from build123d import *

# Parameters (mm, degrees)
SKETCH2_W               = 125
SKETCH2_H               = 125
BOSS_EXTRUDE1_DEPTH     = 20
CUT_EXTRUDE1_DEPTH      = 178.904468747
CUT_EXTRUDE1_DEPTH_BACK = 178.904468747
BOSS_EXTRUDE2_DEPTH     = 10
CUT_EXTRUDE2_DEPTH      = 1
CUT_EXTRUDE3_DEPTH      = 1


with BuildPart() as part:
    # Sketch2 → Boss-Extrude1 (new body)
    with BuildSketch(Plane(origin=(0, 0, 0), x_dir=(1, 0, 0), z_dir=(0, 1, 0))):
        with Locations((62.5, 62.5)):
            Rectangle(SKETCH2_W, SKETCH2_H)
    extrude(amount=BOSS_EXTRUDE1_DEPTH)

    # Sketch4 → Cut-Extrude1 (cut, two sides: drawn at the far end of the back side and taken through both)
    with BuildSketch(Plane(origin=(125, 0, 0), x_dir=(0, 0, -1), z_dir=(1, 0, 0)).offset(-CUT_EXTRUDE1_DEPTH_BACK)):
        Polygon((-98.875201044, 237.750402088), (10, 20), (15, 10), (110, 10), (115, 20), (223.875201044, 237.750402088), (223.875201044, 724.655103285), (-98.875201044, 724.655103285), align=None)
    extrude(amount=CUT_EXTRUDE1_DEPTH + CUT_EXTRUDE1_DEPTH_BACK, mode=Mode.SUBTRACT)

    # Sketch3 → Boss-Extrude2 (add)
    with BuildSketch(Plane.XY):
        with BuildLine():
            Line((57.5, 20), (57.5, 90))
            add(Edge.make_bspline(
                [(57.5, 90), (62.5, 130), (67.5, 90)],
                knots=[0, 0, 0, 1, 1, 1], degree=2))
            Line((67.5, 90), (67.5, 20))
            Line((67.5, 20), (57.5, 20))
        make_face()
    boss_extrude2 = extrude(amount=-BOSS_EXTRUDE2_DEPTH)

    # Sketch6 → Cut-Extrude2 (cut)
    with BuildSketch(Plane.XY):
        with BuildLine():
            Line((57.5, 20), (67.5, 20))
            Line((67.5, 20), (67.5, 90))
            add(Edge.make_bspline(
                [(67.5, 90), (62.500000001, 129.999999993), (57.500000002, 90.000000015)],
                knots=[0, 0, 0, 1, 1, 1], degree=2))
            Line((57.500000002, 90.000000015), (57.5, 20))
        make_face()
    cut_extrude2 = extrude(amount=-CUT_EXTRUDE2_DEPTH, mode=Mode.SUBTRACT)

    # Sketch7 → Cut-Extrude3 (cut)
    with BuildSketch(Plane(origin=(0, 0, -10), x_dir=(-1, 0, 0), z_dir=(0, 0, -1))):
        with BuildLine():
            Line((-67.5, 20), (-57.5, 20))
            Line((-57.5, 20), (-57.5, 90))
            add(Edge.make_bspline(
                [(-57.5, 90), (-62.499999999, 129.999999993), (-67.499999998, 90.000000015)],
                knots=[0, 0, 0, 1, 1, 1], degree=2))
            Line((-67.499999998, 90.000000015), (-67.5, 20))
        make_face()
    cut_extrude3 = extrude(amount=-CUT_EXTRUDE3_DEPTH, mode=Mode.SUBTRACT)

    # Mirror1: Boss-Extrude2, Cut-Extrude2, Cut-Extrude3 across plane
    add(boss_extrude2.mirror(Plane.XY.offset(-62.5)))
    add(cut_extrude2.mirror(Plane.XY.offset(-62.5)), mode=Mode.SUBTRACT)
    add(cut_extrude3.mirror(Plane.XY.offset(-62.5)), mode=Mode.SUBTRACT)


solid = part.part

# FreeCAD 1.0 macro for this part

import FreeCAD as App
import Part
import Sketcher
from FreeCAD import Vector

doc = App.newDocument("Part")
body = doc.addObject("PartDesign::Body", "Body")

# Sketch on XZ plane
sketch1 = body.newObject("Sketcher::SketchObject", "Sketch")
sketch1.AttachmentSupport = (doc.getObject("XZ_Plane"), [""])
sketch1.MapMode = "FlatFace"
sketch1.addGeometry([
    Part.LineSegment(Vector(0, -125, 0), Vector(0, 0, 0)),
    Part.LineSegment(Vector(0, 0, 0), Vector(125, 0, 0)),
    Part.LineSegment(Vector(125, 0, 0), Vector(125, -125, 0)),
    Part.LineSegment(Vector(125, -125, 0), Vector(0, -125, 0)),
], False)
sketch1.addConstraint([
    Sketcher.Constraint("Coincident", 0, 2, 1, 1),
    Sketcher.Constraint("Coincident", 1, 2, 2, 1),
    Sketcher.Constraint("Coincident", 2, 2, 3, 1),
    Sketcher.Constraint("Coincident", 3, 2, 0, 1),
    Sketcher.Constraint("Vertical", 0),
    Sketcher.Constraint("Horizontal", 1),
    Sketcher.Constraint("Vertical", 2),
    Sketcher.Constraint("Horizontal", 3),
    Sketcher.Constraint("Coincident", 0, 2, -1, 1),
    Sketcher.Constraint("Equal", 3, 0),
    Sketcher.Constraint("DistanceX", 1, 1, 1, 2, 125.0),
])
pad1 = body.newObject("PartDesign::Pad", "Pad")
pad1.Profile = sketch1
pad1.Length = 20
pad1.Reversed = True

# Sketch on YZ plane
sketch2 = body.newObject("Sketcher::SketchObject", "Sketch001")
sketch2.AttachmentSupport = (doc.getObject("YZ_Plane"), [""])
sketch2.MapMode = "FlatFace"
sketch2.AttachmentOffset = App.Placement(Vector(0, 0, 125), App.Rotation())
sketch2.addGeometry([
    Part.LineSegment(Vector(238, 99, 0), Vector(10, -15, 0)),  # 0
    Part.LineSegment(Vector(10, -15, 0), Vector(10, -110, 0)),  # 1
    Part.LineSegment(Vector(10, -110, 0), Vector(238, -224, 0)),  # 2
    Part.LineSegment(Vector(238, -224, 0), Vector(725, -224, 0)),  # 3
    Part.LineSegment(Vector(725, -224, 0), Vector(725, 99, 0)),  # 4
    Part.LineSegment(Vector(725, 99, 0), Vector(238, 99, 0)),  # 5
], False)
sketch2.addConstraint([
    Sketcher.Constraint("Coincident", 0, 2, 1, 1),
    Sketcher.Constraint("Coincident", 1, 2, 2, 1),
    Sketcher.Constraint("Coincident", 2, 2, 3, 1),
    Sketcher.Constraint("Coincident", 3, 2, 4, 1),
    Sketcher.Constraint("Coincident", 4, 2, 5, 1),
    Sketcher.Constraint("Coincident", 5, 2, 0, 1),
    Sketcher.Constraint("Vertical", 1),
    Sketcher.Constraint("Horizontal", 3),
    Sketcher.Constraint("Vertical", 4),
    Sketcher.Constraint("Horizontal", 5),
    Sketcher.Constraint("Vertical", 2, 2, 5, 2),
    Sketcher.Constraint("Equal", 0, 2),
    Sketcher.Constraint("DistanceY", 1, 2, 1, 1, 95.0),
    Sketcher.Constraint("DistanceX", -1, 1, 0, 2, 10.0),
    Sketcher.Constraint("DistanceY", 0, 2, -1, 1, 15.0),
    Sketcher.Constraint("DistanceX", 3, 1, 3, 2, 486.904701),
    Sketcher.Constraint("DistanceY", 2, 2, -1, 1, 223.875201),
    Sketcher.Constraint("Distance", 0, 254.63269),
])
pocket1 = body.newObject("PartDesign::Pocket", "Pocket")
pocket1.Profile = sketch2
pocket1.Type = "ThroughAll"
pocket1.Midplane = True

# Sketch on XY plane
sketch3 = body.newObject("Sketcher::SketchObject", "Sketch002")
sketch3.AttachmentSupport = (doc.getObject("XY_Plane"), [""])
sketch3.MapMode = "FlatFace"
sketch3.addGeometry([
    Part.LineSegment(Vector(57.5, 90, 0), Vector(57.5, 20, 0)),
    Part.LineSegment(Vector(57.5, 20, 0), Vector(67.5, 20, 0)),
    Part.LineSegment(Vector(67.5, 20, 0), Vector(67.5, 90, 0)),
    Part.BSplineCurve([Vector(57.5, 90, 0), Vector(62.5, 130, 0), Vector(67.5, 90, 0)], [3, 3], [0, 1], False, 2, [1, 1, 1], False),
], False)
sketch3.addConstraint([
    Sketcher.Constraint("Block", 3),
    Sketcher.Constraint("Coincident", 0, 2, 1, 1),
    Sketcher.Constraint("Coincident", 1, 2, 2, 1),
    Sketcher.Constraint("Coincident", 2, 2, 3, 2),
    Sketcher.Constraint("Coincident", 3, 1, 0, 1),
    Sketcher.Constraint("Vertical", 0),
    Sketcher.Constraint("Horizontal", 1),
    Sketcher.Constraint("Vertical", 2),
    Sketcher.Constraint("DistanceY", 0, 2, 0, 1, 70.0),
])
pad2 = body.newObject("PartDesign::Pad", "Pad001")
pad2.Profile = sketch3
pad2.Length = 10
pad2.Reversed = True

# Sketch on XY plane
sketch4 = body.newObject("Sketcher::SketchObject", "Sketch003")
sketch4.AttachmentSupport = (doc.getObject("XY_Plane"), [""])
sketch4.MapMode = "FlatFace"
sketch4.addGeometry([
    Part.LineSegment(Vector(57.5, 20, 0), Vector(67.5, 20, 0)),
    Part.LineSegment(Vector(67.5, 20, 0), Vector(67.5, 90, 0)),
    Part.BSplineCurve([Vector(67.5, 90, 0), Vector(62.5, 130, 0), Vector(57.5, 90, 0)], [3, 3], [0, 1], False, 2, [1, 1, 1], False),
    Part.LineSegment(Vector(57.5, 90, 0), Vector(57.5, 20, 0)),
], False)
sketch4.addConstraint([
    Sketcher.Constraint("Block", 2),
    Sketcher.Constraint("Coincident", 0, 2, 1, 1),
    Sketcher.Constraint("Coincident", 1, 2, 2, 1),
    Sketcher.Constraint("Coincident", 2, 2, 3, 1),
    Sketcher.Constraint("Coincident", 3, 2, 0, 1),
    Sketcher.Constraint("Horizontal", 0),
    Sketcher.Constraint("Vertical", 1),
    Sketcher.Constraint("Vertical", 3),
    Sketcher.Constraint("DistanceY", 1, 1, 1, 2, 70.0),
])
pocket2 = body.newObject("PartDesign::Pocket", "Pocket001")
pocket2.Profile = sketch4
pocket2.Length = 1

# Sketch on XY plane
sketch5 = body.newObject("Sketcher::SketchObject", "Sketch004")
sketch5.AttachmentSupport = (doc.getObject("XY_Plane"), [""])
sketch5.MapMode = "FlatFace"
sketch5.AttachmentOffset = App.Placement(Vector(0, 0, -10), App.Rotation())
sketch5.addGeometry([
    Part.LineSegment(Vector(67.5, 20, 0), Vector(57.5, 20, 0)),
    Part.LineSegment(Vector(57.5, 20, 0), Vector(57.5, 90, 0)),
    Part.BSplineCurve([Vector(57.5, 90, 0), Vector(62.5, 130, 0), Vector(67.5, 90, 0)], [3, 3], [0, 1], False, 2, [1, 1, 1], False),
    Part.LineSegment(Vector(67.5, 90, 0), Vector(67.5, 20, 0)),
], False)
sketch5.addConstraint([
    Sketcher.Constraint("Block", 2),
    Sketcher.Constraint("Coincident", 0, 2, 1, 1),
    Sketcher.Constraint("Coincident", 1, 2, 2, 1),
    Sketcher.Constraint("Coincident", 2, 2, 3, 1),
    Sketcher.Constraint("Coincident", 3, 2, 0, 1),
    Sketcher.Constraint("Horizontal", 0),
    Sketcher.Constraint("Vertical", 1),
    Sketcher.Constraint("Vertical", 3),
    Sketcher.Constraint("DistanceY", 1, 1, 1, 2, 70.0),
])
pocket3 = body.newObject("PartDesign::Pocket", "Pocket002")
pocket3.Profile = sketch5
pocket3.Length = 1
pocket3.Reversed = True
doc.recompute()

datumplane = body.newObject("PartDesign::Plane", "DatumPlane")
datumplane.AttachmentSupport = (doc.getObject("XY_Plane"), [""])
datumplane.MapMode = "FlatFace"
datumplane.AttachmentOffset = App.Placement(Vector(0, 0, -62.5), App.Rotation())
mirrored = body.newObject("PartDesign::Mirrored", "Mirrored")
mirrored.Originals = [pad2, pocket2, pocket3]
mirrored.MirrorPlane = (datumplane, [""])
body.Tip = mirrored

doc.recompute()
